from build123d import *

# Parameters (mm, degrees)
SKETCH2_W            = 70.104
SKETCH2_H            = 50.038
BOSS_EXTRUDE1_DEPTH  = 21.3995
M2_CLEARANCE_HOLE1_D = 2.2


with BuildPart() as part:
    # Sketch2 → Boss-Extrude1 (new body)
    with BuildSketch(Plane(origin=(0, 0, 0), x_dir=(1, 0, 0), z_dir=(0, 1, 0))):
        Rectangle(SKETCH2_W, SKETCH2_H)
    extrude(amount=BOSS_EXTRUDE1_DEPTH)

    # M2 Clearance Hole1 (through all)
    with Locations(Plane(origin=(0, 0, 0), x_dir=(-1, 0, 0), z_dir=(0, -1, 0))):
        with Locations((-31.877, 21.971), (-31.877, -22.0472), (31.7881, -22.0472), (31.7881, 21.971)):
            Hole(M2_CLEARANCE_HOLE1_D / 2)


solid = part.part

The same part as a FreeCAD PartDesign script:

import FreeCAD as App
import Part
import Sketcher

V = App.Vector
Q = App.Units.Quantity

doc = App.newDocument("Part")
params = doc.addObject("Spreadsheet::Sheet", "Params")
for row, (alias, value) in enumerate([
    ("sketch1_width", "2.76 in"),
    ("sketch1_height", "1.97 in"),
    ("pad1_length", "0.8425 in"),
    ("hole_diameter", "2.2 mm"),
], start=1):
    params.set(f"A{row}", alias)
    params.set(f"B{row}", "=" + value)
    params.setAlias(f"B{row}", alias)

body = doc.addObject("PartDesign::Body", "Body")

# Sketch on XZ plane
sketch1 = body.newObject("Sketcher::SketchObject", "Sketch")
sketch1.AttachmentSupport = (doc.getObject("XZ_Plane"), [""])
sketch1.MapMode = "FlatFace"
sketch1.addGeometry(Part.LineSegment(V(-35.052, -25.019, 0), V(-35.052, 25.019, 0)), False)
sketch1.addGeometry(Part.LineSegment(V(-35.052, 25.019, 0), V(35.052, 25.019, 0)), False)
sketch1.addGeometry(Part.LineSegment(V(35.052, 25.019, 0), V(35.052, -25.019, 0)), False)
sketch1.addGeometry(Part.LineSegment(V(35.052, -25.019, 0), V(-35.052, -25.019, 0)), False)
sketch1.addConstraint(Sketcher.Constraint("Coincident", 0, 2, 1, 1))
sketch1.addConstraint(Sketcher.Constraint("Coincident", 1, 2, 2, 1))
sketch1.addConstraint(Sketcher.Constraint("Coincident", 2, 2, 3, 1))
sketch1.addConstraint(Sketcher.Constraint("Coincident", 3, 2, 0, 1))
sketch1.addConstraint(Sketcher.Constraint("Vertical", 0))
sketch1.addConstraint(Sketcher.Constraint("Horizontal", 1))
sketch1.addConstraint(Sketcher.Constraint("Vertical", 2))
sketch1.addConstraint(Sketcher.Constraint("Horizontal", 3))
sketch1.addConstraint(Sketcher.Constraint("Symmetric", 0, 2, 2, 2, -1, 1))
sketch1.addConstraint(Sketcher.Constraint("DistanceX", 1, 1, 1, 2, Q("2.76 in")))
sketch1.addConstraint(Sketcher.Constraint("DistanceY", 0, 1, 0, 2, Q("1.97 in")))
sketch1.setExpression("Constraints[9]", "Params.sketch1_width")
sketch1.setExpression("Constraints[10]", "Params.sketch1_height")
pad1 = body.newObject("PartDesign::Pad", "Pad")
pad1.Profile = sketch1
pad1.setExpression("Length", "Params.pad1_length")
pad1.Reversed = True

# Sketch on XZ plane
sketch2 = body.newObject("Sketcher::SketchObject", "Sketch001")
sketch2.AttachmentSupport = (doc.getObject("XZ_Plane"), [""])
sketch2.MapMode = "FlatFace"
sketch2.addGeometry(Part.Circle(V(31.877, -21.971, 0), V(0, 0, 1), 1.1), False)
sketch2.addGeometry(Part.Circle(V(31.877, 22.0472, 0), V(0, 0, 1), 1.1), False)
sketch2.addGeometry(Part.Circle(V(-31.7881, 22.0472, 0), V(0, 0, 1), 1.1), False)
sketch2.addGeometry(Part.Circle(V(-31.7881, -21.971, 0), V(0, 0, 1), 1.1), False)
sketch2.addConstraint(Sketcher.Constraint("Equal", 0, 1))
sketch2.addConstraint(Sketcher.Constraint("Equal", 1, 2))
sketch2.addConstraint(Sketcher.Constraint("Equal", 2, 3))
sketch2.addConstraint(Sketcher.Constraint("Horizontal", 1, 3, 2, 3))
sketch2.addConstraint(Sketcher.Constraint("Horizontal", 0, 3, 3, 3))
sketch2.addConstraint(Sketcher.Constraint("Vertical", 0, 3, 1, 3))
sketch2.addConstraint(Sketcher.Constraint("Vertical", 2, 3, 3, 3))
sketch2.addConstraint(Sketcher.Constraint("Diameter", 0, Q("2.2 mm")))
sketch2.addConstraint(Sketcher.Constraint("DistanceX", -1, 1, 0, 3, Q("1.255 in")))
sketch2.addConstraint(Sketcher.Constraint("DistanceY", 0, 3, -1, 1, Q("0.865 in")))
sketch2.addConstraint(Sketcher.Constraint("DistanceY", -1, 1, 1, 3, Q("0.868 in")))
sketch2.addConstraint(Sketcher.Constraint("DistanceX", 2, 3, -1, 1, Q("1.2515 in")))
doc.recompute()
hole = body.newObject("PartDesign::Hole", "Hole")
hole.Profile = sketch2
hole.ThreadType = "None"
hole.setExpression("Diameter", "Params.hole_diameter")
hole.DepthType = "ThroughAll"

doc.recompute()
